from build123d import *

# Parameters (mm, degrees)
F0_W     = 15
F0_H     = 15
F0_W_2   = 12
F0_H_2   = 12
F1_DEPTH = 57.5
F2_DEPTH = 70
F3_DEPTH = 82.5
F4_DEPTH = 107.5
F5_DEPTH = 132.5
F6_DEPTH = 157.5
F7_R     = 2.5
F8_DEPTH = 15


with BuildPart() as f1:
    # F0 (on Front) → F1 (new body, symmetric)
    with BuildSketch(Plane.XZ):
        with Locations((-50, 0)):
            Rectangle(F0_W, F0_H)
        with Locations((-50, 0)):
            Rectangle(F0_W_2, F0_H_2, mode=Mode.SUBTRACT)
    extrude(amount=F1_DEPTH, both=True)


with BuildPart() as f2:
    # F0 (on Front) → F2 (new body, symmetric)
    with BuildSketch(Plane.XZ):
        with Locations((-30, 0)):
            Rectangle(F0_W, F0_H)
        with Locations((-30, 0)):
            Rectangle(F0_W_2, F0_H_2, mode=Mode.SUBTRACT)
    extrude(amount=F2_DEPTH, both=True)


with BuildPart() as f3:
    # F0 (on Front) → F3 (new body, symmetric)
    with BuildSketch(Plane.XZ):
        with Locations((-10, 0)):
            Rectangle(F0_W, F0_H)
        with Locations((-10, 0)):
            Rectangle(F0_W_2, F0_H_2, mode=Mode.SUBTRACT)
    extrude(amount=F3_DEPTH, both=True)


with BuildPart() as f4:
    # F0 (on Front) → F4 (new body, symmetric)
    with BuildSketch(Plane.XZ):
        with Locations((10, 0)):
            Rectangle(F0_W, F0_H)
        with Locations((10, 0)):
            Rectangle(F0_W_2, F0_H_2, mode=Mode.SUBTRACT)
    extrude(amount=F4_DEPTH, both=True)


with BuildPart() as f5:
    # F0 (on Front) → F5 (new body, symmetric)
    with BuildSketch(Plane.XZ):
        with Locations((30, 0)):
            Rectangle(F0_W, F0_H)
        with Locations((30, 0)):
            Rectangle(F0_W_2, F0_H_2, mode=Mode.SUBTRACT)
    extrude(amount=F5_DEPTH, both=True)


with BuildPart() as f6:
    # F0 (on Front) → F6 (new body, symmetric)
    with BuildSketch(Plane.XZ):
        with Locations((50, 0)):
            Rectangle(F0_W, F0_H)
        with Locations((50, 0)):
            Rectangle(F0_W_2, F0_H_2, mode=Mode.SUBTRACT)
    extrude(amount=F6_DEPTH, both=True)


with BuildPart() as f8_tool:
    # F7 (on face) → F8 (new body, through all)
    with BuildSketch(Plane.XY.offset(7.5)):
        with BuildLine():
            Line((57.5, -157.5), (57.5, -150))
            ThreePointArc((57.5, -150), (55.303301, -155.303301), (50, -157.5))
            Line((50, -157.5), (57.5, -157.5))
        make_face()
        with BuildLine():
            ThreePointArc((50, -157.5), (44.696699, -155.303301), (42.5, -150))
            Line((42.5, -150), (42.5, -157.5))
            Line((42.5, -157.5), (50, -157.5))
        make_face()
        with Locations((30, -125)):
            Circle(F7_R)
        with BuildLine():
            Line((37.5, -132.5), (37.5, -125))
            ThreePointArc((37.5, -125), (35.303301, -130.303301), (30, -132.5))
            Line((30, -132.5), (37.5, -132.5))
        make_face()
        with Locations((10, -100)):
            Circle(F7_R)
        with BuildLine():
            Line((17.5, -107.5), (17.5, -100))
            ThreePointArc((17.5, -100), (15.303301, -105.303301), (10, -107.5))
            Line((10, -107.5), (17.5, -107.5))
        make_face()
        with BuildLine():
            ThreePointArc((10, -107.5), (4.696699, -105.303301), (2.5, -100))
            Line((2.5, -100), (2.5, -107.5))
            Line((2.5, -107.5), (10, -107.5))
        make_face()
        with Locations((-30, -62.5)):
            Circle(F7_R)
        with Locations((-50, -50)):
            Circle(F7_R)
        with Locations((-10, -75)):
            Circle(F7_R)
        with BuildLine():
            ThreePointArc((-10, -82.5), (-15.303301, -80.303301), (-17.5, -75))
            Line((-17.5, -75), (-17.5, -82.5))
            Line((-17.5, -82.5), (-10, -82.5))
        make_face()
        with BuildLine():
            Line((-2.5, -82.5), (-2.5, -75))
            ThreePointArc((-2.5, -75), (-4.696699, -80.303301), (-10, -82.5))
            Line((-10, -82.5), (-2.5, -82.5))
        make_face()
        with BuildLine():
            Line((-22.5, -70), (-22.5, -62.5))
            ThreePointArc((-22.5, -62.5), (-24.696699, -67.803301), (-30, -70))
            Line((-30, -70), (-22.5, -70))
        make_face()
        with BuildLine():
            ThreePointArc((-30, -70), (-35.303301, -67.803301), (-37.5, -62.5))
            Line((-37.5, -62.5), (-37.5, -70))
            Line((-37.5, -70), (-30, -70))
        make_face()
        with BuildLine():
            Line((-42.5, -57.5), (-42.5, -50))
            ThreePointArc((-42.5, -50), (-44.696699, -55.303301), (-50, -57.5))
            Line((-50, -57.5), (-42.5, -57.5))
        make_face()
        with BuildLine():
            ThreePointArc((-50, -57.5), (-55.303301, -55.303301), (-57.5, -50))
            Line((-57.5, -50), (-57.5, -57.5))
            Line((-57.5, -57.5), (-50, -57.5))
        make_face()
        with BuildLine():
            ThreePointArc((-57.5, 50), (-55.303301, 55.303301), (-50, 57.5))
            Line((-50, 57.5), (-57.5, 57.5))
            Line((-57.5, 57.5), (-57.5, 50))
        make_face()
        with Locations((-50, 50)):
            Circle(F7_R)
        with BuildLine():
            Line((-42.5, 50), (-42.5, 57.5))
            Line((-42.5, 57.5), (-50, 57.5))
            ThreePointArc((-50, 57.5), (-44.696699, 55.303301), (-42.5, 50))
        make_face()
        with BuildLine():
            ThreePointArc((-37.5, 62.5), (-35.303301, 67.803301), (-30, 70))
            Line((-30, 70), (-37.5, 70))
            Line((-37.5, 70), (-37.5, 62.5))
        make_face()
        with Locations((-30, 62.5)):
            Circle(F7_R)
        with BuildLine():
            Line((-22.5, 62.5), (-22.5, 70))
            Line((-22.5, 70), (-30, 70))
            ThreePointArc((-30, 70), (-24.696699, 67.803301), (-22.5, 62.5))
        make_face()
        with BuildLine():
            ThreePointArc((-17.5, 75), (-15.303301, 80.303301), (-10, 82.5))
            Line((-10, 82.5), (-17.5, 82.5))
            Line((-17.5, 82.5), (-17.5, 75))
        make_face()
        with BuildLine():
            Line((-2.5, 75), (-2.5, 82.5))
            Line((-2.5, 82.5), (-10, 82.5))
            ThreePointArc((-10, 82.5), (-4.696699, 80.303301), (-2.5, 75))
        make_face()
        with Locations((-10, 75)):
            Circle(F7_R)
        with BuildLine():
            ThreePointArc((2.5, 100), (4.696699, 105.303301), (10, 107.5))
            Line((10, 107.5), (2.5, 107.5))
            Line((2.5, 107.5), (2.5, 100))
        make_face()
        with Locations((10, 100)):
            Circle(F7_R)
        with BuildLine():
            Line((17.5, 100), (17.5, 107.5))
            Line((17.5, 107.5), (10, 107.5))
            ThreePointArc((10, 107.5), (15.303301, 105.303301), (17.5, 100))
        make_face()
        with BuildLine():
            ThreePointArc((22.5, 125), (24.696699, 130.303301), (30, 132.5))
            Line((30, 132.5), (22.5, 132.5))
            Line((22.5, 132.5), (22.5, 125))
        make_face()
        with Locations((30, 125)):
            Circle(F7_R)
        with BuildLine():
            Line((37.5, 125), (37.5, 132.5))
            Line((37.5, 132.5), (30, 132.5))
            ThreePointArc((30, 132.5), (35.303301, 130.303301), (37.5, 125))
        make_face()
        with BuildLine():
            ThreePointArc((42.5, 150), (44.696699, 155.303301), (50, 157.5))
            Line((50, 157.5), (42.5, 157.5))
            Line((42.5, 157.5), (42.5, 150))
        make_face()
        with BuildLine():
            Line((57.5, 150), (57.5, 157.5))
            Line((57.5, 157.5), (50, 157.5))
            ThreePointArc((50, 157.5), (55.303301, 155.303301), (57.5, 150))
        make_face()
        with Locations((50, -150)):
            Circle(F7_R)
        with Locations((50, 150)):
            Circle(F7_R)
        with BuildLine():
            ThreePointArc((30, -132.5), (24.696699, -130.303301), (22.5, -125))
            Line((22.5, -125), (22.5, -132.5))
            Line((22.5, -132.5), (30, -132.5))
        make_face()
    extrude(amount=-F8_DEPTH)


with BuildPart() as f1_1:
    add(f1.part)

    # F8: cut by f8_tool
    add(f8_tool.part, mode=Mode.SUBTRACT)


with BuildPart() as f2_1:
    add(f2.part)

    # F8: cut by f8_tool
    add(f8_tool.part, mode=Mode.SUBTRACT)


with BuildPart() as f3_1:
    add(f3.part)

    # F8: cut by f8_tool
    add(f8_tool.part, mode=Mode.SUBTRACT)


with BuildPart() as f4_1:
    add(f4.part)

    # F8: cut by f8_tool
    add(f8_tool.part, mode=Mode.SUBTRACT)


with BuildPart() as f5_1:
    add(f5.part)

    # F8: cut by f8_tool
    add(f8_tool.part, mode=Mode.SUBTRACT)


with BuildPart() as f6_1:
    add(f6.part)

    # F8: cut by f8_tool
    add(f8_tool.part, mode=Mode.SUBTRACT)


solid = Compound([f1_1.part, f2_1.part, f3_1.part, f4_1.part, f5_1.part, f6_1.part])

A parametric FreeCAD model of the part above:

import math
import FreeCAD as App
import Part
import Sketcher
Q = App.Units.Quantity


def add_polygon(sketch, points):
    """Adds a closed chain of lines whose ends are joined by coincident constraints."""
    first, n = sketch.GeometryCount, len(points)
    for a, b in zip(points, points[1:] + points[:1]):
        sketch.addGeometry(Part.LineSegment(App.Vector(*a, 0), App.Vector(*b, 0)), False)
    for i in range(n):
        sketch.addConstraint(Sketcher.Constraint("Coincident", first + i, 2, first + (i + 1) % n, 1))

doc = App.newDocument("Part")
body = doc.addObject("PartDesign::Body", "Body")

sketch1 = doc.addObject("Sketcher::SketchObject", "Sketch")
body.addObject(sketch1)
sketch1.AttachmentSupport = (doc.XZ_Plane, [""])
sketch1.MapMode = "FlatFace"
add_polygon(sketch1, [(-58, 8), (-58, -8), (-42, -8), (-42, 8)])
add_polygon(sketch1, [(-44, -6), (-56, -6), (-56, 6), (-44, 6)])
sketch1.addConstraint(Sketcher.Constraint("Vertical", 0))
sketch1.addConstraint(Sketcher.Constraint("Horizontal", 1))
sketch1.addConstraint(Sketcher.Constraint("Vertical", 2))
sketch1.addConstraint(Sketcher.Constraint("Horizontal", 3))
sketch1.addConstraint(Sketcher.Constraint("Horizontal", 4))
sketch1.addConstraint(Sketcher.Constraint("Vertical", 5))
sketch1.addConstraint(Sketcher.Constraint("Horizontal", 6))
sketch1.addConstraint(Sketcher.Constraint("Vertical", 7))
sketch1.addConstraint(Sketcher.Constraint("Equal", 3, 0))
sketch1.addConstraint(Sketcher.Constraint("Equal", 6, 5))
sketch1.addConstraint(Sketcher.Constraint("DistanceX", 1, 1, 1, 2, Q("15 mm")))
sketch1.addConstraint(Sketcher.Constraint("DistanceX", 4, 2, 4, 1, Q("12 mm")))
sketch1.addConstraint(Sketcher.Constraint("DistanceX", 4, 2, -1, 1, Q("56 mm")))
sketch1.addConstraint(Sketcher.Constraint("DistanceY", 4, 2, -1, 1, Q("6 mm")))
sketch1.addConstraint(Sketcher.Constraint("DistanceX", 0, 2, -1, 1, Q("57.5 mm")))
sketch1.addConstraint(Sketcher.Constraint("DistanceY", 0, 2, -1, 1, Q("7.5 mm")))
pad1 = doc.addObject("PartDesign::Pad", "Pad")
body.addObject(pad1)
pad1.Profile = sketch1
pad1.Length = 115
pad1.Midplane = True
body2 = doc.addObject("PartDesign::Body", "Body001")

sketch2 = doc.addObject("Sketcher::SketchObject", "Sketch001")
body2.addObject(sketch2)
sketch2.AttachmentSupport = (doc.getObject("XZ_Plane001"), [""])
sketch2.MapMode = "FlatFace"
add_polygon(sketch2, [(-38, 8), (-38, -8), (-22, -8), (-22, 8)])
add_polygon(sketch2, [(-24, -6), (-36, -6), (-36, 6), (-24, 6)])
sketch2.addConstraint(Sketcher.Constraint("Vertical", 0))
sketch2.addConstraint(Sketcher.Constraint("Horizontal", 1))
sketch2.addConstraint(Sketcher.Constraint("Vertical", 2))
sketch2.addConstraint(Sketcher.Constraint("Horizontal", 3))
sketch2.addConstraint(Sketcher.Constraint("Horizontal", 4))
sketch2.addConstraint(Sketcher.Constraint("Vertical", 5))
sketch2.addConstraint(Sketcher.Constraint("Horizontal", 6))
sketch2.addConstraint(Sketcher.Constraint("Vertical", 7))
sketch2.addConstraint(Sketcher.Constraint("Equal", 3, 0))
sketch2.addConstraint(Sketcher.Constraint("Equal", 6, 5))
sketch2.addConstraint(Sketcher.Constraint("DistanceX", 1, 1, 1, 2, Q("15 mm")))
sketch2.addConstraint(Sketcher.Constraint("DistanceX", 4, 2, 4, 1, Q("12 mm")))
sketch2.addConstraint(Sketcher.Constraint("DistanceX", 4, 2, -1, 1, Q("36 mm")))
sketch2.addConstraint(Sketcher.Constraint("DistanceY", 4, 2, -1, 1, Q("6 mm")))
sketch2.addConstraint(Sketcher.Constraint("DistanceX", 0, 2, -1, 1, Q("37.5 mm")))
sketch2.addConstraint(Sketcher.Constraint("DistanceY", 0, 2, -1, 1, Q("7.5 mm")))
pad2 = doc.addObject("PartDesign::Pad", "Pad001")
body2.addObject(pad2)
pad2.Profile = sketch2
pad2.Length = 140
pad2.Midplane = True
body3 = doc.addObject("PartDesign::Body", "Body002")

sketch3 = doc.addObject("Sketcher::SketchObject", "Sketch002")
body3.addObject(sketch3)
sketch3.AttachmentSupport = (doc.getObject("XZ_Plane002"), [""])
sketch3.MapMode = "FlatFace"
add_polygon(sketch3, [(-18, 8), (-18, -8), (-2, -8), (-2, 8)])
add_polygon(sketch3, [(-4, -6), (-16, -6), (-16, 6), (-4, 6)])
sketch3.addConstraint(Sketcher.Constraint("Vertical", 0))
sketch3.addConstraint(Sketcher.Constraint("Horizontal", 1))
sketch3.addConstraint(Sketcher.Constraint("Vertical", 2))
sketch3.addConstraint(Sketcher.Constraint("Horizontal", 3))
sketch3.addConstraint(Sketcher.Constraint("Horizontal", 4))
sketch3.addConstraint(Sketcher.Constraint("Vertical", 5))
sketch3.addConstraint(Sketcher.Constraint("Horizontal", 6))
sketch3.addConstraint(Sketcher.Constraint("Vertical", 7))
sketch3.addConstraint(Sketcher.Constraint("Equal", 3, 0))
sketch3.addConstraint(Sketcher.Constraint("Equal", 6, 5))
sketch3.addConstraint(Sketcher.Constraint("DistanceX", 1, 1, 1, 2, Q("15 mm")))
sketch3.addConstraint(Sketcher.Constraint("DistanceX", 4, 2, 4, 1, Q("12 mm")))
sketch3.addConstraint(Sketcher.Constraint("DistanceX", 4, 2, -1, 1, Q("16 mm")))
sketch3.addConstraint(Sketcher.Constraint("DistanceY", 4, 2, -1, 1, Q("6 mm")))
sketch3.addConstraint(Sketcher.Constraint("DistanceX", 0, 2, -1, 1, Q("17.5 mm")))
sketch3.addConstraint(Sketcher.Constraint("DistanceY", 0, 2, -1, 1, Q("7.5 mm")))
pad3 = doc.addObject("PartDesign::Pad", "Pad002")
body3.addObject(pad3)
pad3.Profile = sketch3
pad3.Length = 165
pad3.Midplane = True
body4 = doc.addObject("PartDesign::Body", "Body003")

sketch4 = doc.addObject("Sketcher::SketchObject", "Sketch003")
body4.addObject(sketch4)
sketch4.AttachmentSupport = (doc.getObject("XZ_Plane003"), [""])
sketch4.MapMode = "FlatFace"
add_polygon(sketch4, [(2, 8), (2, -8), (18, -8), (18, 8)])
add_polygon(sketch4, [(16, -6), (4, -6), (4, 6), (16, 6)])
sketch4.addConstraint(Sketcher.Constraint("Vertical", 0))
sketch4.addConstraint(Sketcher.Constraint("Horizontal", 1))
sketch4.addConstraint(Sketcher.Constraint("Vertical", 2))
sketch4.addConstraint(Sketcher.Constraint("Horizontal", 3))
sketch4.addConstraint(Sketcher.Constraint("Horizontal", 4))
sketch4.addConstraint(Sketcher.Constraint("Vertical", 5))
sketch4.addConstraint(Sketcher.Constraint("Horizontal", 6))
sketch4.addConstraint(Sketcher.Constraint("Vertical", 7))
sketch4.addConstraint(Sketcher.Constraint("Equal", 3, 0))
sketch4.addConstraint(Sketcher.Constraint("Equal", 6, 5))
sketch4.addConstraint(Sketcher.Constraint("DistanceX", 1, 1, 1, 2, Q("15 mm")))
sketch4.addConstraint(Sketcher.Constraint("DistanceX", 4, 2, 4, 1, Q("12 mm")))
sketch4.addConstraint(Sketcher.Constraint("DistanceX", -1, 1, 4, 2, Q("4 mm")))
sketch4.addConstraint(Sketcher.Constraint("DistanceY", 4, 2, -1, 1, Q("6 mm")))
sketch4.addConstraint(Sketcher.Constraint("DistanceX", -1, 1, 0, 2, Q("2.5 mm")))
sketch4.addConstraint(Sketcher.Constraint("DistanceY", 0, 2, -1, 1, Q("7.5 mm")))
pad4 = doc.addObject("PartDesign::Pad", "Pad003")
body4.addObject(pad4)
pad4.Profile = sketch4
pad4.Length = 215
pad4.Midplane = True
body5 = doc.addObject("PartDesign::Body", "Body004")

sketch5 = doc.addObject("Sketcher::SketchObject", "Sketch004")
body5.addObject(sketch5)
sketch5.AttachmentSupport = (doc.getObject("XZ_Plane004"), [""])
sketch5.MapMode = "FlatFace"
add_polygon(sketch5, [(22, 8), (22, -8), (38, -8), (38, 8)])
add_polygon(sketch5, [(36, -6), (24, -6), (24, 6), (36, 6)])
sketch5.addConstraint(Sketcher.Constraint("Vertical", 0))
sketch5.addConstraint(Sketcher.Constraint("Horizontal", 1))
sketch5.addConstraint(Sketcher.Constraint("Vertical", 2))
sketch5.addConstraint(Sketcher.Constraint("Horizontal", 3))
sketch5.addConstraint(Sketcher.Constraint("Horizontal", 4))
sketch5.addConstraint(Sketcher.Constraint("Vertical", 5))
sketch5.addConstraint(Sketcher.Constraint("Horizontal", 6))
sketch5.addConstraint(Sketcher.Constraint("Vertical", 7))
sketch5.addConstraint(Sketcher.Constraint("Equal", 3, 0))
sketch5.addConstraint(Sketcher.Constraint("Equal", 6, 5))
sketch5.addConstraint(Sketcher.Constraint("DistanceX", 1, 1, 1, 2, Q("15 mm")))
sketch5.addConstraint(Sketcher.Constraint("DistanceX", 4, 2, 4, 1, Q("12 mm")))
sketch5.addConstraint(Sketcher.Constraint("DistanceX", -1, 1, 4, 2, Q("24 mm")))
sketch5.addConstraint(Sketcher.Constraint("DistanceY", 4, 2, -1, 1, Q("6 mm")))
sketch5.addConstraint(Sketcher.Constraint("DistanceX", -1, 1, 0, 2, Q("22.5 mm")))
sketch5.addConstraint(Sketcher.Constraint("DistanceY", 0, 2, -1, 1, Q("7.5 mm")))
pad5 = doc.addObject("PartDesign::Pad", "Pad004")
body5.addObject(pad5)
pad5.Profile = sketch5
pad5.Length = 265
pad5.Midplane = True
body6 = doc.addObject("PartDesign::Body", "Body005")

sketch6 = doc.addObject("Sketcher::SketchObject", "Sketch005")
body6.addObject(sketch6)
sketch6.AttachmentSupport = (doc.getObject("XZ_Plane005"), [""])
sketch6.MapMode = "FlatFace"
add_polygon(sketch6, [(42, 8), (42, -8), (58, -8), (58, 8)])
add_polygon(sketch6, [(56, -6), (44, -6), (44, 6), (56, 6)])
sketch6.addConstraint(Sketcher.Constraint("Vertical", 0))
sketch6.addConstraint(Sketcher.Constraint("Horizontal", 1))
sketch6.addConstraint(Sketcher.Constraint("Vertical", 2))
sketch6.addConstraint(Sketcher.Constraint("Horizontal", 3))
sketch6.addConstraint(Sketcher.Constraint("Horizontal", 4))
sketch6.addConstraint(Sketcher.Constraint("Vertical", 5))
sketch6.addConstraint(Sketcher.Constraint("Horizontal", 6))
sketch6.addConstraint(Sketcher.Constraint("Vertical", 7))
sketch6.addConstraint(Sketcher.Constraint("Equal", 3, 0))
sketch6.addConstraint(Sketcher.Constraint("Equal", 6, 5))
sketch6.addConstraint(Sketcher.Constraint("DistanceX", 1, 1, 1, 2, Q("15 mm")))
sketch6.addConstraint(Sketcher.Constraint("DistanceX", 4, 2, 4, 1, Q("12 mm")))
sketch6.addConstraint(Sketcher.Constraint("DistanceX", -1, 1, 4, 2, Q("44 mm")))
sketch6.addConstraint(Sketcher.Constraint("DistanceY", 4, 2, -1, 1, Q("6 mm")))
sketch6.addConstraint(Sketcher.Constraint("DistanceX", -1, 1, 0, 2, Q("42.5 mm")))
sketch6.addConstraint(Sketcher.Constraint("DistanceY", 0, 2, -1, 1, Q("7.5 mm")))
pad6 = doc.addObject("PartDesign::Pad", "Pad005")
body6.addObject(pad6)
pad6.Profile = sketch6
pad6.Length = 315
pad6.Midplane = True
body7 = doc.addObject("PartDesign::Body", "Body006")
body7.AllowCompound = True

sketch7 = doc.addObject("Sketcher::SketchObject", "Sketch006")
body7.addObject(sketch7)
sketch7.AttachmentSupport = (doc.getObject("XY_Plane006"), [""])
sketch7.MapMode = "FlatFace"
sketch7.AttachmentOffset = App.Placement(App.Vector(0, 0, 7.5), App.Rotation())
sketch7.addGeometry(Part.LineSegment(App.Vector(57.5, -157.5, 0), App.Vector(57.5, -150, 0)), False)
sketch7.addGeometry(Part.ArcOfCircle(Part.Circle(App.Vector(50, -150, 0), App.Vector(0, 0, 1), 7.5), math.radians(-90), math.radians(0)), False)
sketch7.addGeometry(Part.LineSegment(App.Vector(50, -157.5, 0), App.Vector(57.5, -157.5, 0)), False)
sketch7.addGeometry(Part.ArcOfCircle(Part.Circle(App.Vector(50, -150, 0), App.Vector(0, 0, 1), 7.5), math.radians(180), math.radians(270)), False)
sketch7.addGeometry(Part.LineSegment(App.Vector(42.5, -150, 0), App.Vector(42.5, -157.5, 0)), False)
sketch7.addGeometry(Part.LineSegment(App.Vector(42.5, -157.5, 0), App.Vector(50, -157.5, 0)), False)
sketch7.addGeometry(Part.Circle(App.Vector(30, -125, 0), App.Vector(0, 0, 1), 2.5), False)
sketch7.addGeometry(Part.LineSegment(App.Vector(37.5, -132.5, 0), App.Vector(37.5, -125, 0)), False)
sketch7.addGeometry(Part.ArcOfCircle(Part.Circle(App.Vector(30, -125, 0), App.Vector(0, 0, 1), 7.5), math.radians(-90), math.radians(0)), False)
sketch7.addGeometry(Part.LineSegment(App.Vector(30, -132.5, 0), App.Vector(37.5, -132.5, 0)), False)
sketch7.addGeometry(Part.Circle(App.Vector(10, -100, 0), App.Vector(0, 0, 1), 2.5), False)
sketch7.addGeometry(Part.LineSegment(App.Vector(17.5, -107.5, 0), App.Vector(17.5, -100, 0)), False)
sketch7.addGeometry(Part.ArcOfCircle(Part.Circle(App.Vector(10, -100, 0), App.Vector(0, 0, 1), 7.5), math.radians(-90), math.radians(0)), False)
sketch7.addGeometry(Part.LineSegment(App.Vector(10, -107.5, 0), App.Vector(17.5, -107.5, 0)), False)
sketch7.addGeometry(Part.ArcOfCircle(Part.Circle(App.Vector(10, -100, 0), App.Vector(0, 0, 1), 7.5), math.radians(180), math.radians(270)), False)
sketch7.addGeometry(Part.LineSegment(App.Vector(2.5, -100, 0), App.Vector(2.5, -107.5, 0)), False)
sketch7.addGeometry(Part.LineSegment(App.Vector(2.5, -107.5, 0), App.Vector(10, -107.5, 0)), False)
sketch7.addGeometry(Part.Circle(App.Vector(-30, -62.5, 0), App.Vector(0, 0, 1), 2.5), False)
sketch7.addGeometry(Part.Circle(App.Vector(-50, -50, 0), App.Vector(0, 0, 1), 2.5), False)
sketch7.addGeometry(Part.Circle(App.Vector(-10, -75, 0), App.Vector(0, 0, 1), 2.5), False)
sketch7.addGeometry(Part.ArcOfCircle(Part.Circle(App.Vector(-10, -75, 0), App.Vector(0, 0, 1), 7.5), math.radians(180), math.radians(270)), False)
sketch7.addGeometry(Part.LineSegment(App.Vector(-17.5, -75, 0), App.Vector(-17.5, -82.5, 0)), False)
sketch7.addGeometry(Part.LineSegment(App.Vector(-17.5, -82.5, 0), App.Vector(-10, -82.5, 0)), False)
sketch7.addGeometry(Part.LineSegment(App.Vector(-2.5, -82.5, 0), App.Vector(-2.5, -75, 0)), False)
sketch7.addGeometry(Part.ArcOfCircle(Part.Circle(App.Vector(-10, -75, 0), App.Vector(0, 0, 1), 7.5), math.radians(-90), math.radians(0)), False)
sketch7.addGeometry(Part.LineSegment(App.Vector(-10, -82.5, 0), App.Vector(-2.5, -82.5, 0)), False)
sketch7.addGeometry(Part.LineSegment(App.Vector(-22.5, -70, 0), App.Vector(-22.5, -62.5, 0)), False)
sketch7.addGeometry(Part.ArcOfCircle(Part.Circle(App.Vector(-30, -62.5, 0), App.Vector(0, 0, 1), 7.5), math.radians(-90), math.radians(0)), False)
sketch7.addGeometry(Part.LineSegment(App.Vector(-30, -70, 0), App.Vector(-22.5, -70, 0)), False)
sketch7.addGeometry(Part.ArcOfCircle(Part.Circle(App.Vector(-30, -62.5, 0), App.Vector(0, 0, 1), 7.5), math.radians(180), math.radians(270)), False)
sketch7.addGeometry(Part.LineSegment(App.Vector(-37.5, -62.5, 0), App.Vector(-37.5, -70, 0)), False)
sketch7.addGeometry(Part.LineSegment(App.Vector(-37.5, -70, 0), App.Vector(-30, -70, 0)), False)
sketch7.addGeometry(Part.LineSegment(App.Vector(-42.5, -57.5, 0), App.Vector(-42.5, -50, 0)), False)
sketch7.addGeometry(Part.ArcOfCircle(Part.Circle(App.Vector(-50, -50, 0), App.Vector(0, 0, 1), 7.5), math.radians(-90), math.radians(0)), False)
sketch7.addGeometry(Part.LineSegment(App.Vector(-50, -57.5, 0), App.Vector(-42.5, -57.5, 0)), False)
sketch7.addGeometry(Part.ArcOfCircle(Part.Circle(App.Vector(-50, -50, 0), App.Vector(0, 0, 1), 7.5), math.radians(180), math.radians(270)), False)
sketch7.addGeometry(Part.LineSegment(App.Vector(-57.5, -50, 0), App.Vector(-57.5, -57.5, 0)), False)
sketch7.addGeometry(Part.LineSegment(App.Vector(-57.5, -57.5, 0), App.Vector(-50, -57.5, 0)), False)
sketch7.addGeometry(Part.ArcOfCircle(Part.Circle(App.Vector(-50, 50, 0), App.Vector(0, 0, 1), 7.5), math.radians(90), math.radians(180)), False)
sketch7.addGeometry(Part.LineSegment(App.Vector(-50, 57.5, 0), App.Vector(-57.5, 57.5, 0)), False)
sketch7.addGeometry(Part.LineSegment(App.Vector(-57.5, 57.5, 0), App.Vector(-57.5, 50, 0)), False)
sketch7.addGeometry(Part.Circle(App.Vector(-50, 50, 0), App.Vector(0, 0, 1), 2.5), False)
sketch7.addGeometry(Part.LineSegment(App.Vector(-42.5, 50, 0), App.Vector(-42.5, 57.5, 0)), False)
sketch7.addGeometry(Part.LineSegment(App.Vector(-42.5, 57.5, 0), App.Vector(-50, 57.5, 0)), False)
sketch7.addGeometry(Part.ArcOfCircle(Part.Circle(App.Vector(-50, 50, 0), App.Vector(0, 0, 1), 7.5), math.radians(0), math.radians(90)), False)
sketch7.addGeometry(Part.ArcOfCircle(Part.Circle(App.Vector(-30, 62.5, 0), App.Vector(0, 0, 1), 7.5), math.radians(90), math.radians(180)), False)
sketch7.addGeometry(Part.LineSegment(App.Vector(-30, 70, 0), App.Vector(-37.5, 70, 0)), False)
sketch7.addGeometry(Part.LineSegment(App.Vector(-37.5, 70, 0), App.Vector(-37.5, 62.5, 0)), False)
sketch7.addGeometry(Part.Circle(App.Vector(-30, 62.5, 0), App.Vector(0, 0, 1), 2.5), False)
sketch7.addGeometry(Part.LineSegment(App.Vector(-22.5, 62.5, 0), App.Vector(-22.5, 70, 0)), False)
sketch7.addGeometry(Part.LineSegment(App.Vector(-22.5, 70, 0), App.Vector(-30, 70, 0)), False)
sketch7.addGeometry(Part.ArcOfCircle(Part.Circle(App.Vector(-30, 62.5, 0), App.Vector(0, 0, 1), 7.5), math.radians(0), math.radians(90)), False)
sketch7.addGeometry(Part.ArcOfCircle(Part.Circle(App.Vector(-10, 75, 0), App.Vector(0, 0, 1), 7.5), math.radians(90), math.radians(180)), False)
sketch7.addGeometry(Part.LineSegment(App.Vector(-10, 82.5, 0), App.Vector(-17.5, 82.5, 0)), False)
sketch7.addGeometry(Part.LineSegment(App.Vector(-17.5, 82.5, 0), App.Vector(-17.5, 75, 0)), False)
sketch7.addGeometry(Part.LineSegment(App.Vector(-2.5, 75, 0), App.Vector(-2.5, 82.5, 0)), False)
sketch7.addGeometry(Part.LineSegment(App.Vector(-2.5, 82.5, 0), App.Vector(-10, 82.5, 0)), False)
sketch7.addGeometry(Part.ArcOfCircle(Part.Circle(App.Vector(-10, 75, 0), App.Vector(0, 0, 1), 7.5), math.radians(0), math.radians(90)), False)
sketch7.addGeometry(Part.Circle(App.Vector(-10, 75, 0), App.Vector(0, 0, 1), 2.5), False)
sketch7.addGeometry(Part.ArcOfCircle(Part.Circle(App.Vector(10, 100, 0), App.Vector(0, 0, 1), 7.5), math.radians(90), math.radians(180)), False)
sketch7.addGeometry(Part.LineSegment(App.Vector(10, 107.5, 0), App.Vector(2.5, 107.5, 0)), False)
sketch7.addGeometry(Part.LineSegment(App.Vector(2.5, 107.5, 0), App.Vector(2.5, 100, 0)), False)
sketch7.addGeometry(Part.Circle(App.Vector(10, 100, 0), App.Vector(0, 0, 1), 2.5), False)
sketch7.addGeometry(Part.LineSegment(App.Vector(17.5, 100, 0), App.Vector(17.5, 107.5, 0)), False)
sketch7.addGeometry(Part.LineSegment(App.Vector(17.5, 107.5, 0), App.Vector(10, 107.5, 0)), False)
sketch7.addGeometry(Part.ArcOfCircle(Part.Circle(App.Vector(10, 100, 0), App.Vector(0, 0, 1), 7.5), math.radians(0), math.radians(90)), False)
sketch7.addGeometry(Part.ArcOfCircle(Part.Circle(App.Vector(30, 125, 0), App.Vector(0, 0, 1), 7.5), math.radians(90), math.radians(180)), False)
sketch7.addGeometry(Part.LineSegment(App.Vector(30, 132.5, 0), App.Vector(22.5, 132.5, 0)), False)
sketch7.addGeometry(Part.LineSegment(App.Vector(22.5, 132.5, 0), App.Vector(22.5, 125, 0)), False)
sketch7.addGeometry(Part.Circle(App.Vector(30, 125, 0), App.Vector(0, 0, 1), 2.5), False)
sketch7.addGeometry(Part.LineSegment(App.Vector(37.5, 125, 0), App.Vector(37.5, 132.5, 0)), False)
sketch7.addGeometry(Part.LineSegment(App.Vector(37.5, 132.5, 0), App.Vector(30, 132.5, 0)), False)
sketch7.addGeometry(Part.ArcOfCircle(Part.Circle(App.Vector(30, 125, 0), App.Vector(0, 0, 1), 7.5), math.radians(0), math.radians(90)), False)
sketch7.addGeometry(Part.ArcOfCircle(Part.Circle(App.Vector(50, 150, 0), App.Vector(0, 0, 1), 7.5), math.radians(90), math.radians(180)), False)
sketch7.addGeometry(Part.LineSegment(App.Vector(50, 157.5, 0), App.Vector(42.5, 157.5, 0)), False)
sketch7.addGeometry(Part.LineSegment(App.Vector(42.5, 157.5, 0), App.Vector(42.5, 150, 0)), False)
sketch7.addGeometry(Part.LineSegment(App.Vector(57.5, 150, 0), App.Vector(57.5, 157.5, 0)), False)
sketch7.addGeometry(Part.LineSegment(App.Vector(57.5, 157.5, 0), App.Vector(50, 157.5, 0)), False)
sketch7.addGeometry(Part.ArcOfCircle(Part.Circle(App.Vector(50, 150, 0), App.Vector(0, 0, 1), 7.5), math.radians(0), math.radians(90)), False)
sketch7.addGeometry(Part.Circle(App.Vector(50, -150, 0), App.Vector(0, 0, 1), 2.5), False)
sketch7.addGeometry(Part.Circle(App.Vector(50, 150, 0), App.Vector(0, 0, 1), 2.5), False)
sketch7.addGeometry(Part.ArcOfCircle(Part.Circle(App.Vector(30, -125, 0), App.Vector(0, 0, 1), 7.5), math.radians(180), math.radians(270)), False)
sketch7.addGeometry(Part.LineSegment(App.Vector(22.5, -125, 0), App.Vector(22.5, -132.5, 0)), False)
sketch7.addGeometry(Part.LineSegment(App.Vector(22.5, -132.5, 0), App.Vector(30, -132.5, 0)), False)
sketch7.addConstraint(Sketcher.Constraint("Tangent", 0, 2, 1, 2))
sketch7.addConstraint(Sketcher.Constraint("Tangent", 1, 1, 2, 1))
sketch7.addConstraint(Sketcher.Constraint("Coincident", 2, 2, 0, 1))
sketch7.addConstraint(Sketcher.Constraint("Tangent", 3, 1, 4, 1))
sketch7.addConstraint(Sketcher.Constraint("Coincident", 4, 2, 5, 1))
sketch7.addConstraint(Sketcher.Constraint("Tangent", 5, 2, 3, 2))
sketch7.addConstraint(Sketcher.Constraint("Tangent", 7, 2, 8, 2))
sketch7.addConstraint(Sketcher.Constraint("Tangent", 8, 1, 9, 1))
sketch7.addConstraint(Sketcher.Constraint("Coincident", 9, 2, 7, 1))
sketch7.addConstraint(Sketcher.Constraint("Tangent", 11, 2, 12, 2))
sketch7.addConstraint(Sketcher.Constraint("Tangent", 12, 1, 13, 1))
sketch7.addConstraint(Sketcher.Constraint("Coincident", 13, 2, 11, 1))
sketch7.addConstraint(Sketcher.Constraint("Tangent", 14, 1, 15, 1))
sketch7.addConstraint(Sketcher.Constraint("Coincident", 15, 2, 16, 1))
sketch7.addConstraint(Sketcher.Constraint("Tangent", 16, 2, 14, 2))
sketch7.addConstraint(Sketcher.Constraint("Tangent", 20, 1, 21, 1))
sketch7.addConstraint(Sketcher.Constraint("Coincident", 21, 2, 22, 1))
sketch7.addConstraint(Sketcher.Constraint("Tangent", 22, 2, 20, 2))
sketch7.addConstraint(Sketcher.Constraint("Tangent", 23, 2, 24, 2))
sketch7.addConstraint(Sketcher.Constraint("Tangent", 24, 1, 25, 1))
sketch7.addConstraint(Sketcher.Constraint("Coincident", 25, 2, 23, 1))
sketch7.addConstraint(Sketcher.Constraint("Tangent", 26, 2, 27, 2))
sketch7.addConstraint(Sketcher.Constraint("Tangent", 27, 1, 28, 1))
sketch7.addConstraint(Sketcher.Constraint("Coincident", 28, 2, 26, 1))
sketch7.addConstraint(Sketcher.Constraint("Tangent", 29, 1, 30, 1))
sketch7.addConstraint(Sketcher.Constraint("Coincident", 30, 2, 31, 1))
sketch7.addConstraint(Sketcher.Constraint("Tangent", 31, 2, 29, 2))
sketch7.addConstraint(Sketcher.Constraint("Tangent", 32, 2, 33, 2))
sketch7.addConstraint(Sketcher.Constraint("Tangent", 33, 1, 34, 1))
sketch7.addConstraint(Sketcher.Constraint("Coincident", 34, 2, 32, 1))
sketch7.addConstraint(Sketcher.Constraint("Tangent", 35, 1, 36, 1))
sketch7.addConstraint(Sketcher.Constraint("Coincident", 36, 2, 37, 1))
sketch7.addConstraint(Sketcher.Constraint("Tangent", 37, 2, 35, 2))
sketch7.addConstraint(Sketcher.Constraint("Tangent", 38, 1, 39, 1))
sketch7.addConstraint(Sketcher.Constraint("Coincident", 39, 2, 40, 1))
sketch7.addConstraint(Sketcher.Constraint("Tangent", 40, 2, 38, 2))
sketch7.addConstraint(Sketcher.Constraint("Coincident", 42, 2, 43, 1))
sketch7.addConstraint(Sketcher.Constraint("Tangent", 43, 2, 44, 2))
sketch7.addConstraint(Sketcher.Constraint("Tangent", 44, 1, 42, 1))
sketch7.addConstraint(Sketcher.Constraint("Tangent", 45, 1, 46, 1))
sketch7.addConstraint(Sketcher.Constraint("Coincident", 46, 2, 47, 1))
sketch7.addConstraint(Sketcher.Constraint("Tangent", 47, 2, 45, 2))
sketch7.addConstraint(Sketcher.Constraint("Coincident", 49, 2, 50, 1))
sketch7.addConstraint(Sketcher.Constraint("Tangent", 50, 2, 51, 2))
sketch7.addConstraint(Sketcher.Constraint("Tangent", 51, 1, 49, 1))
sketch7.addConstraint(Sketcher.Constraint("Tangent", 52, 1, 53, 1))
sketch7.addConstraint(Sketcher.Constraint("Coincident", 53, 2, 54, 1))
sketch7.addConstraint(Sketcher.Constraint("Tangent", 54, 2, 52, 2))
sketch7.addConstraint(Sketcher.Constraint("Coincident", 55, 2, 56, 1))
sketch7.addConstraint(Sketcher.Constraint("Tangent", 56, 2, 57, 2))
sketch7.addConstraint(Sketcher.Constraint("Tangent", 57, 1, 55, 1))
sketch7.addConstraint(Sketcher.Constraint("Tangent", 59, 1, 60, 1))
sketch7.addConstraint(Sketcher.Constraint("Coincident", 60, 2, 61, 1))
sketch7.addConstraint(Sketcher.Constraint("Tangent", 61, 2, 59, 2))
sketch7.addConstraint(Sketcher.Constraint("Coincident", 63, 2, 64, 1))
sketch7.addConstraint(Sketcher.Constraint("Tangent", 64, 2, 65, 2))
sketch7.addConstraint(Sketcher.Constraint("Tangent", 65, 1, 63, 1))
sketch7.addConstraint(Sketcher.Constraint("Tangent", 66, 1, 67, 1))
sketch7.addConstraint(Sketcher.Constraint("Coincident", 67, 2, 68, 1))
sketch7.addConstraint(Sketcher.Constraint("Tangent", 68, 2, 66, 2))
sketch7.addConstraint(Sketcher.Constraint("Coincident", 70, 2, 71, 1))
sketch7.addConstraint(Sketcher.Constraint("Tangent", 71, 2, 72, 2))
sketch7.addConstraint(Sketcher.Constraint("Tangent", 72, 1, 70, 1))
sketch7.addConstraint(Sketcher.Constraint("Tangent", 73, 1, 74, 1))
sketch7.addConstraint(Sketcher.Constraint("Coincident", 74, 2, 75, 1))
sketch7.addConstraint(Sketcher.Constraint("Tangent", 75, 2, 73, 2))
sketch7.addConstraint(Sketcher.Constraint("Coincident", 76, 2, 77, 1))
sketch7.addConstraint(Sketcher.Constraint("Tangent", 77, 2, 78, 2))
sketch7.addConstraint(Sketcher.Constraint("Tangent", 78, 1, 76, 1))
sketch7.addConstraint(Sketcher.Constraint("Tangent", 81, 1, 82, 1))
sketch7.addConstraint(Sketcher.Constraint("Coincident", 82, 2, 83, 1))
sketch7.addConstraint(Sketcher.Constraint("Tangent", 83, 2, 81, 2))
sketch7.addConstraint(Sketcher.Constraint("Vertical", 0))
sketch7.addConstraint(Sketcher.Constraint("Horizontal", 2))
sketch7.addConstraint(Sketcher.Constraint("Vertical", 4))
sketch7.addConstraint(Sketcher.Constraint("Horizontal", 5))
sketch7.addConstraint(Sketcher.Constraint("Vertical", 7))
sketch7.addConstraint(Sketcher.Constraint("Horizontal", 9))
sketch7.addConstraint(Sketcher.Constraint("Vertical", 11))
sketch7.addConstraint(Sketcher.Constraint("Horizontal", 13))
sketch7.addConstraint(Sketcher.Constraint("Vertical", 15))
sketch7.addConstraint(Sketcher.Constraint("Horizontal", 16))
sketch7.addConstraint(Sketcher.Constraint("Vertical", 21))
sketch7.addConstraint(Sketcher.Constraint("Horizontal", 22))
sketch7.addConstraint(Sketcher.Constraint("Vertical", 23))
sketch7.addConstraint(Sketcher.Constraint("Horizontal", 25))
sketch7.addConstraint(Sketcher.Constraint("Vertical", 26))
sketch7.addConstraint(Sketcher.Constraint("Horizontal", 28))
sketch7.addConstraint(Sketcher.Constraint("Vertical", 30))
sketch7.addConstraint(Sketcher.Constraint("Horizontal", 31))
sketch7.addConstraint(Sketcher.Constraint("Vertical", 32))
sketch7.addConstraint(Sketcher.Constraint("Horizontal", 34))
sketch7.addConstraint(Sketcher.Constraint("Vertical", 36))
sketch7.addConstraint(Sketcher.Constraint("Horizontal", 37))
sketch7.addConstraint(Sketcher.Constraint("Horizontal", 39))
sketch7.addConstraint(Sketcher.Constraint("Vertical", 40))
sketch7.addConstraint(Sketcher.Constraint("Vertical", 42))
sketch7.addConstraint(Sketcher.Constraint("Horizontal", 43))
sketch7.addConstraint(Sketcher.Constraint("Horizontal", 46))
sketch7.addConstraint(Sketcher.Constraint("Vertical", 47))
sketch7.addConstraint(Sketcher.Constraint("Vertical", 49))
sketch7.addConstraint(Sketcher.Constraint("Horizontal", 50))
sketch7.addConstraint(Sketcher.Constraint("Horizontal", 53))
sketch7.addConstraint(Sketcher.Constraint("Vertical", 54))
sketch7.addConstraint(Sketcher.Constraint("Vertical", 55))
sketch7.addConstraint(Sketcher.Constraint("Horizontal", 56))
sketch7.addConstraint(Sketcher.Constraint("Horizontal", 60))
sketch7.addConstraint(Sketcher.Constraint("Vertical", 61))
sketch7.addConstraint(Sketcher.Constraint("Vertical", 63))
sketch7.addConstraint(Sketcher.Constraint("Horizontal", 64))
sketch7.addConstraint(Sketcher.Constraint("Horizontal", 67))
sketch7.addConstraint(Sketcher.Constraint("Vertical", 68))
sketch7.addConstraint(Sketcher.Constraint("Vertical", 70))
sketch7.addConstraint(Sketcher.Constraint("Horizontal", 71))
sketch7.addConstraint(Sketcher.Constraint("Horizontal", 74))
sketch7.addConstraint(Sketcher.Constraint("Vertical", 75))
sketch7.addConstraint(Sketcher.Constraint("Vertical", 76))
sketch7.addConstraint(Sketcher.Constraint("Horizontal", 77))
sketch7.addConstraint(Sketcher.Constraint("Vertical", 82))
sketch7.addConstraint(Sketcher.Constraint("Horizontal", 83))
sketch7.addConstraint(Sketcher.Constraint("Coincident", 3, 3, 1, 3))
sketch7.addConstraint(Sketcher.Constraint("Coincident", 8, 3, 6, 3))
sketch7.addConstraint(Sketcher.Constraint("Coincident", 12, 3, 10, 3))
sketch7.addConstraint(Sketcher.Constraint("Coincident", 14, 3, 10, 3))
sketch7.addConstraint(Sketcher.Constraint("Coincident", 20, 3, 19, 3))
sketch7.addConstraint(Sketcher.Constraint("Coincident", 24, 3, 19, 3))
sketch7.addConstraint(Sketcher.Constraint("Coincident", 27, 3, 17, 3))
sketch7.addConstraint(Sketcher.Constraint("Coincident", 29, 3, 17, 3))
sketch7.addConstraint(Sketcher.Constraint("Coincident", 33, 3, 18, 3))
sketch7.addConstraint(Sketcher.Constraint("Coincident", 35, 3, 18, 3))
sketch7.addConstraint(Sketcher.Constraint("Coincident", 41, 3, 38, 3))
sketch7.addConstraint(Sketcher.Constraint("Coincident", 44, 3, 38, 3))
sketch7.addConstraint(Sketcher.Constraint("Coincident", 48, 3, 45, 3))
sketch7.addConstraint(Sketcher.Constraint("Coincident", 51, 3, 45, 3))
sketch7.addConstraint(Sketcher.Constraint("Coincident", 57, 3, 52, 3))
sketch7.addConstraint(Sketcher.Constraint("Coincident", 58, 3, 52, 3))
sketch7.addConstraint(Sketcher.Constraint("Coincident", 62, 3, 59, 3))
sketch7.addConstraint(Sketcher.Constraint("Coincident", 65, 3, 59, 3))
sketch7.addConstraint(Sketcher.Constraint("Coincident", 69, 3, 66, 3))
sketch7.addConstraint(Sketcher.Constraint("Coincident", 72, 3, 66, 3))
sketch7.addConstraint(Sketcher.Constraint("Coincident", 78, 3, 73, 3))
sketch7.addConstraint(Sketcher.Constraint("Coincident", 79, 3, 1, 3))
sketch7.addConstraint(Sketcher.Constraint("Coincident", 80, 3, 73, 3))
sketch7.addConstraint(Sketcher.Constraint("Coincident", 81, 3, 6, 3))
sketch7.addConstraint(Sketcher.Constraint("Equal", 1, 3))
sketch7.addConstraint(Sketcher.Constraint("Equal", 3, 8))
sketch7.addConstraint(Sketcher.Constraint("Equal", 6, 10))
sketch7.addConstraint(Sketcher.Constraint("Equal", 8, 12))
sketch7.addConstraint(Sketcher.Constraint("Equal", 12, 14))
sketch7.addConstraint(Sketcher.Constraint("Equal", 10, 17))
sketch7.addConstraint(Sketcher.Constraint("Equal", 17, 18))
sketch7.addConstraint(Sketcher.Constraint("Equal", 18, 19))
sketch7.addConstraint(Sketcher.Constraint("Equal", 14, 20))
sketch7.addConstraint(Sketcher.Constraint("Equal", 20, 24))
sketch7.addConstraint(Sketcher.Constraint("Equal", 24, 27))
sketch7.addConstraint(Sketcher.Constraint("Equal", 27, 29))
sketch7.addConstraint(Sketcher.Constraint("Equal", 29, 33))
sketch7.addConstraint(Sketcher.Constraint("Equal", 33, 35))
sketch7.addConstraint(Sketcher.Constraint("Equal", 35, 38))
sketch7.addConstraint(Sketcher.Constraint("Equal", 19, 41))
sketch7.addConstraint(Sketcher.Constraint("Equal", 38, 44))
sketch7.addConstraint(Sketcher.Constraint("Equal", 44, 45))
sketch7.addConstraint(Sketcher.Constraint("Equal", 41, 48))
sketch7.addConstraint(Sketcher.Constraint("Equal", 45, 51))
sketch7.addConstraint(Sketcher.Constraint("Equal", 51, 52))
sketch7.addConstraint(Sketcher.Constraint("Equal", 52, 57))
sketch7.addConstraint(Sketcher.Constraint("Equal", 48, 58))
sketch7.addConstraint(Sketcher.Constraint("Equal", 57, 59))
sketch7.addConstraint(Sketcher.Constraint("Equal", 58, 62))
sketch7.addConstraint(Sketcher.Constraint("Equal", 59, 65))
sketch7.addConstraint(Sketcher.Constraint("Equal", 65, 66))
sketch7.addConstraint(Sketcher.Constraint("Equal", 62, 69))
sketch7.addConstraint(Sketcher.Constraint("Equal", 66, 72))
sketch7.addConstraint(Sketcher.Constraint("Equal", 72, 73))
sketch7.addConstraint(Sketcher.Constraint("Equal", 73, 78))
sketch7.addConstraint(Sketcher.Constraint("Equal", 69, 79))
sketch7.addConstraint(Sketcher.Constraint("Equal", 79, 80))
sketch7.addConstraint(Sketcher.Constraint("Equal", 78, 81))
sketch7.addConstraint(Sketcher.Constraint("Symmetric", 18, 3, 38, 3, -1))
sketch7.addConstraint(Sketcher.Constraint("Symmetric", 17, 3, 45, 3, -1))
sketch7.addConstraint(Sketcher.Constraint("Symmetric", 19, 3, 52, 3, -1))
sketch7.addConstraint(Sketcher.Constraint("Symmetric", 10, 3, 59, 3, -1))
sketch7.addConstraint(Sketcher.Constraint("Symmetric", 6, 3, 66, 3, -1))
sketch7.addConstraint(Sketcher.Constraint("Symmetric", 1, 3, 73, 3, -1))
sketch7.addConstraint(Sketcher.Constraint("Diameter", 6, Q("5 mm")))
sketch7.addConstraint(Sketcher.Constraint("Radius", 1, Q("7.5 mm")))
sketch7.addConstraint(Sketcher.Constraint("DistanceX", -1, 1, 1, 3, Q("50 mm")))
sketch7.addConstraint(Sketcher.Constraint("DistanceY", 1, 3, -1, 1, Q("150 mm")))
sketch7.addConstraint(Sketcher.Constraint("DistanceX", -1, 1, 6, 3, Q("30 mm")))
sketch7.addConstraint(Sketcher.Constraint("DistanceY", 6, 3, -1, 1, Q("125 mm")))
sketch7.addConstraint(Sketcher.Constraint("DistanceX", -1, 1, 10, 3, Q("10 mm")))
sketch7.addConstraint(Sketcher.Constraint("DistanceY", 10, 3, -1, 1, Q("100 mm")))
sketch7.addConstraint(Sketcher.Constraint("DistanceX", 17, 3, -1, 1, Q("30 mm")))
sketch7.addConstraint(Sketcher.Constraint("DistanceX", 18, 3, -1, 1, Q("50 mm")))
sketch7.addConstraint(Sketcher.Constraint("DistanceY", 18, 3, -1, 1, Q("50 mm")))
sketch7.addConstraint(Sketcher.Constraint("DistanceX", 19, 3, -1, 1, Q("10 mm")))
sketch7.addConstraint(Sketcher.Constraint("DistanceY", 19, 3, -1, 1, Q("75 mm")))
sketch7.addConstraint(Sketcher.Constraint("DistanceY", 27, 1, -1, 1, Q("70 mm")))
pad7 = doc.addObject("PartDesign::Pad", "Pad006")
body7.addObject(pad7)
pad7.Profile = sketch7
pad7.Length = 15
pad7.Reversed = True
doc.recompute()

body8 = doc.addObject("PartDesign::Body", "Body007")
body8.BaseFeature = body7
boolean = doc.addObject("PartDesign::Boolean", "Boolean")
body.addObject(boolean)
boolean.Type = "Cut"
boolean.addObjects([body8])
doc.recompute()

body9 = doc.addObject("PartDesign::Body", "Body008")
body9.BaseFeature = body7
boolean2 = doc.addObject("PartDesign::Boolean", "Boolean001")
body2.addObject(boolean2)
boolean2.Type = "Cut"
boolean2.addObjects([body9])
doc.recompute()

body10 = doc.addObject("PartDesign::Body", "Body009")
body10.BaseFeature = body7
boolean3 = doc.addObject("PartDesign::Boolean", "Boolean002")
body3.addObject(boolean3)
boolean3.Type = "Cut"
boolean3.addObjects([body10])
doc.recompute()

body11 = doc.addObject("PartDesign::Body", "Body010")
body11.BaseFeature = body7
boolean4 = doc.addObject("PartDesign::Boolean", "Boolean003")
body4.addObject(boolean4)
boolean4.Type = "Cut"
boolean4.addObjects([body11])
doc.recompute()

body12 = doc.addObject("PartDesign::Body", "Body011")
body12.BaseFeature = body7
boolean5 = doc.addObject("PartDesign::Boolean", "Boolean004")
body5.addObject(boolean5)
boolean5.Type = "Cut"
boolean5.addObjects([body12])
doc.recompute()

boolean6 = doc.addObject("PartDesign::Boolean", "Boolean005")
body6.addObject(boolean6)
boolean6.Type = "Cut"
boolean6.addObjects([body7])

doc.recompute()
